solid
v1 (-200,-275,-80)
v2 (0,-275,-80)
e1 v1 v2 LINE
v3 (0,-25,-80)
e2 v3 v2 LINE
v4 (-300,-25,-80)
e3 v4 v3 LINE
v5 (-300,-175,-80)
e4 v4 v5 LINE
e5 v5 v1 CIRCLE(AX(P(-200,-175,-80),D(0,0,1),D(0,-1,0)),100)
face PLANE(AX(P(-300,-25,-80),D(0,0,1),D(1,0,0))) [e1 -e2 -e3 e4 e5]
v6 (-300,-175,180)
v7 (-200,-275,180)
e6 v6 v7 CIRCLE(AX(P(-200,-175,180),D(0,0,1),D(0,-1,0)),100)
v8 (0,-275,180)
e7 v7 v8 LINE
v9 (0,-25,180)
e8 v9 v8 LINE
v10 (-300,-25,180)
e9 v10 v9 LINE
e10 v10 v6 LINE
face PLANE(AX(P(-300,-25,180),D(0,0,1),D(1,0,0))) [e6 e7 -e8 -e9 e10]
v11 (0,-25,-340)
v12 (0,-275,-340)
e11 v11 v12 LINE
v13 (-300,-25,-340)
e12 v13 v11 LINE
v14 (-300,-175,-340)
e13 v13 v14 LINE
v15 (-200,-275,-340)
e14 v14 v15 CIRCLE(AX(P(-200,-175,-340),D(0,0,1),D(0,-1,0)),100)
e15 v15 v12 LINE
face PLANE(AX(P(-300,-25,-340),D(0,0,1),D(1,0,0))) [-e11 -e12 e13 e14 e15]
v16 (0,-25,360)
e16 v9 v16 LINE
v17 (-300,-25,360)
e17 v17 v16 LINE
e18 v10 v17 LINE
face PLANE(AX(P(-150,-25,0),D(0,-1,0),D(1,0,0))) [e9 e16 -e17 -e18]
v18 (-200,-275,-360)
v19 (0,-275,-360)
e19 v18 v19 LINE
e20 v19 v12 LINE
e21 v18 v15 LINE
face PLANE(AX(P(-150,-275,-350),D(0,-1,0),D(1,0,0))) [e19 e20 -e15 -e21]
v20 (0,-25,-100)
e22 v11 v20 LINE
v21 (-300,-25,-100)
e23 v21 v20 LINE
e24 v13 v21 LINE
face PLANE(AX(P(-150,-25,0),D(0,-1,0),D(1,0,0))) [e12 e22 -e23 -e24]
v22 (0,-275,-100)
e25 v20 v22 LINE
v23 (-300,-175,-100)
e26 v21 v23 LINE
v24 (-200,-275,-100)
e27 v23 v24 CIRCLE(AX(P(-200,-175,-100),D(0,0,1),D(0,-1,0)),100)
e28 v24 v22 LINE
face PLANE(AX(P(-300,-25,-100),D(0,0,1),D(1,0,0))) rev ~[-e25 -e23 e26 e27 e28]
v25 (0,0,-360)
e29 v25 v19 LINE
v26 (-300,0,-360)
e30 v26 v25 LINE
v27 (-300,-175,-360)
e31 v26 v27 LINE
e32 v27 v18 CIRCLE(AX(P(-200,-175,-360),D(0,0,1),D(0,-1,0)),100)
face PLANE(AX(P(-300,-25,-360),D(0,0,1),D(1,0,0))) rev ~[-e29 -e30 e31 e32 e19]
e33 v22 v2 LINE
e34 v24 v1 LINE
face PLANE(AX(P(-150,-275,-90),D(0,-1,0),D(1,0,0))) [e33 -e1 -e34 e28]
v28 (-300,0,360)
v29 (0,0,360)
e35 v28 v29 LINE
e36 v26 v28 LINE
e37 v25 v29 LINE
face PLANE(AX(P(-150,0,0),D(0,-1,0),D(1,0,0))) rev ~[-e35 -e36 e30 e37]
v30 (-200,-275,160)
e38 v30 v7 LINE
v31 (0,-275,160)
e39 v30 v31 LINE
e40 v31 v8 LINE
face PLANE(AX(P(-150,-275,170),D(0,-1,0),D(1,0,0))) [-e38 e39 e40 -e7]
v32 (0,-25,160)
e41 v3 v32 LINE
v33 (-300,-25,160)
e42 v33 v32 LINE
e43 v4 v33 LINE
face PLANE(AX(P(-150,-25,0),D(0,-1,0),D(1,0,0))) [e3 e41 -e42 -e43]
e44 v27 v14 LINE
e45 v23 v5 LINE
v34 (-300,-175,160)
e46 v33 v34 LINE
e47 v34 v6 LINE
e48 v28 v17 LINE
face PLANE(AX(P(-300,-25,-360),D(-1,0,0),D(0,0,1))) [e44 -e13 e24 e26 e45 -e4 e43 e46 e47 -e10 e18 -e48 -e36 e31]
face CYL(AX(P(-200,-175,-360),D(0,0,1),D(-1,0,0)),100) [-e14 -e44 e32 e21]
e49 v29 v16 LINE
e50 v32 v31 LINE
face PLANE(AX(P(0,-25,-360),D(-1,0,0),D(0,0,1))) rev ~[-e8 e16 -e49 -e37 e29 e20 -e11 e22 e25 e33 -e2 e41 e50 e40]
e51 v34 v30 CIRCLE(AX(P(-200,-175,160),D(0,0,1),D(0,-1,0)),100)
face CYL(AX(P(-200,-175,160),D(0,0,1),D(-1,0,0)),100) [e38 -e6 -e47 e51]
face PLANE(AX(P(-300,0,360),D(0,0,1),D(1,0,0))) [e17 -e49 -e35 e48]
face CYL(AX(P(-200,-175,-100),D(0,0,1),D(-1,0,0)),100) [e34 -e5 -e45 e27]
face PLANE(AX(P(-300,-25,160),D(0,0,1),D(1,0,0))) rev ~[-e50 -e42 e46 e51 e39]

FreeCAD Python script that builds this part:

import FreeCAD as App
import Part
import Sketcher
Q = App.Units.Quantity


def edges_at(feature, points):
    """Names of the edges that pass closest to the given points."""
    edges = feature.Shape.Edges
    near = lambda p: min(range(len(edges)), key=lambda i: edges[i].distToShape(Part.Vertex(*p))[0])
    return sorted({f"Edge{near(p) + 1}" for p in points})


def add_polygon(sketch, points):
    """Adds a closed chain of lines whose ends are joined by coincident constraints."""
    first, n = sketch.GeometryCount, len(points)
    for a, b in zip(points, points[1:] + points[:1]):
        sketch.addGeometry(Part.LineSegment(App.Vector(*a, 0), App.Vector(*b, 0)), False)
    for i in range(n):
        sketch.addConstraint(Sketcher.Constraint("Coincident", first + i, 2, first + (i + 1) % n, 1))

doc = App.newDocument("Part")
body = doc.addObject("PartDesign::Body", "Body")

# Sketch on XZ plane
sketch1 = doc.addObject("Sketcher::SketchObject", "Sketch")
body.addObject(sketch1)
sketch1.AttachmentSupport = (doc.XZ_Plane, [""])
sketch1.MapMode = "FlatFace"
add_polygon(sketch1, [(-300, 360), (-300, -360), (0, -360), (0, 360)])  # lines 0-3
sketch1.addConstraint([
    Sketcher.Constraint("Vertical", 0),
    Sketcher.Constraint("Horizontal", 1),
    Sketcher.Constraint("Vertical", 2),
    Sketcher.Constraint("Horizontal", 3),
    Sketcher.Constraint("Symmetric", 1, 2, 2, 2, -1, 1),
    Sketcher.Constraint("DistanceX", 1, 1, 1, 2, Q("300 mm")),
    Sketcher.Constraint("DistanceY", 0, 2, 0, 1, Q("720 mm")),
])
pad1 = doc.addObject("PartDesign::Pad", "Pad")
body.addObject(pad1)
pad1.Profile = sketch1
pad1.Length = 25

# Sketch on XZ plane
sketch2 = doc.addObject("Sketcher::SketchObject", "Sketch001")
body.addObject(sketch2)
sketch2.AttachmentSupport = (doc.XZ_Plane, [""])
sketch2.MapMode = "FlatFace"
sketch2.AttachmentOffset = App.Placement(App.Vector(0, 0, 25), App.Rotation())
add_polygon(sketch2, [(-300, -340), (-300, -360), (0, -360), (0, -340)])  # lines 0-3
sketch2.addConstraint([
    Sketcher.Constraint("Vertical", 0),
    Sketcher.Constraint("Horizontal", 1),
    Sketcher.Constraint("Vertical", 2),
    Sketcher.Constraint("Horizontal", 3),
    Sketcher.Constraint("PointOnObject", 1, 2, -2),
    Sketcher.Constraint("DistanceX", 1, 1, 1, 2, Q("300 mm")),
    Sketcher.Constraint("DistanceY", 0, 2, 0, 1, Q("20 mm")),
    Sketcher.Constraint("DistanceY", 0, 2, -1, 1, Q("360 mm")),
])
pad2 = doc.addObject("PartDesign::Pad", "Pad001")
body.addObject(pad2)
pad2.Profile = sketch2
pad2.Length = 250
doc.recompute()

fillet = doc.addObject("PartDesign::Fillet", "Fillet")
body.addObject(fillet)
fillet.Base = (pad2, edges_at(pad2, [(-300, -275, -350)]))
fillet.Radius = 100

# Sketch on XZ plane
sketch3 = doc.addObject("Sketcher::SketchObject", "Sketch002")
body.addObject(sketch3)
sketch3.AttachmentSupport = (doc.XZ_Plane, [""])
sketch3.MapMode = "FlatFace"
sketch3.AttachmentOffset = App.Placement(App.Vector(0, 0, 25), App.Rotation())
add_polygon(sketch3, [(-300, -80), (-300, -100), (0, -100), (0, -80)])  # lines 0-3
add_polygon(sketch3, [(-300, 180), (-300, 160), (0, 160), (0, 180)])  # lines 4-7
sketch3.addConstraint([
    Sketcher.Constraint("Vertical", 0),
    Sketcher.Constraint("Horizontal", 1),
    Sketcher.Constraint("Vertical", 2),
    Sketcher.Constraint("Horizontal", 3),
    Sketcher.Constraint("Vertical", 4),
    Sketcher.Constraint("Horizontal", 5),
    Sketcher.Constraint("Vertical", 6),
    Sketcher.Constraint("Horizontal", 7),
    Sketcher.Constraint("PointOnObject", 1, 2, -2),
    Sketcher.Constraint("PointOnObject", 5, 2, -2),
    Sketcher.Constraint("Vertical", 3, 2, 4, 2),
    Sketcher.Constraint("Equal", 2, 4),
    Sketcher.Constraint("DistanceX", 1, 1, 1, 2, Q("300 mm")),
    Sketcher.Constraint("DistanceY", 0, 2, 0, 1, Q("20 mm")),
    Sketcher.Constraint("DistanceY", 0, 2, -1, 1, Q("100 mm")),
    Sketcher.Constraint("DistanceY", -1, 1, 4, 2, Q("160 mm")),
])
pad3 = doc.addObject("PartDesign::Pad", "Pad002")
body.addObject(pad3)
pad3.Profile = sketch3
pad3.Length = 250
doc.recompute()

fillet2 = doc.addObject("PartDesign::Fillet", "Fillet001")
body.addObject(fillet2)
fillet2.Base = (pad3, edges_at(pad3, [(-300, -275, 170), (-300, -275, -90)]))
fillet2.Radius = 100

doc.recompute()
